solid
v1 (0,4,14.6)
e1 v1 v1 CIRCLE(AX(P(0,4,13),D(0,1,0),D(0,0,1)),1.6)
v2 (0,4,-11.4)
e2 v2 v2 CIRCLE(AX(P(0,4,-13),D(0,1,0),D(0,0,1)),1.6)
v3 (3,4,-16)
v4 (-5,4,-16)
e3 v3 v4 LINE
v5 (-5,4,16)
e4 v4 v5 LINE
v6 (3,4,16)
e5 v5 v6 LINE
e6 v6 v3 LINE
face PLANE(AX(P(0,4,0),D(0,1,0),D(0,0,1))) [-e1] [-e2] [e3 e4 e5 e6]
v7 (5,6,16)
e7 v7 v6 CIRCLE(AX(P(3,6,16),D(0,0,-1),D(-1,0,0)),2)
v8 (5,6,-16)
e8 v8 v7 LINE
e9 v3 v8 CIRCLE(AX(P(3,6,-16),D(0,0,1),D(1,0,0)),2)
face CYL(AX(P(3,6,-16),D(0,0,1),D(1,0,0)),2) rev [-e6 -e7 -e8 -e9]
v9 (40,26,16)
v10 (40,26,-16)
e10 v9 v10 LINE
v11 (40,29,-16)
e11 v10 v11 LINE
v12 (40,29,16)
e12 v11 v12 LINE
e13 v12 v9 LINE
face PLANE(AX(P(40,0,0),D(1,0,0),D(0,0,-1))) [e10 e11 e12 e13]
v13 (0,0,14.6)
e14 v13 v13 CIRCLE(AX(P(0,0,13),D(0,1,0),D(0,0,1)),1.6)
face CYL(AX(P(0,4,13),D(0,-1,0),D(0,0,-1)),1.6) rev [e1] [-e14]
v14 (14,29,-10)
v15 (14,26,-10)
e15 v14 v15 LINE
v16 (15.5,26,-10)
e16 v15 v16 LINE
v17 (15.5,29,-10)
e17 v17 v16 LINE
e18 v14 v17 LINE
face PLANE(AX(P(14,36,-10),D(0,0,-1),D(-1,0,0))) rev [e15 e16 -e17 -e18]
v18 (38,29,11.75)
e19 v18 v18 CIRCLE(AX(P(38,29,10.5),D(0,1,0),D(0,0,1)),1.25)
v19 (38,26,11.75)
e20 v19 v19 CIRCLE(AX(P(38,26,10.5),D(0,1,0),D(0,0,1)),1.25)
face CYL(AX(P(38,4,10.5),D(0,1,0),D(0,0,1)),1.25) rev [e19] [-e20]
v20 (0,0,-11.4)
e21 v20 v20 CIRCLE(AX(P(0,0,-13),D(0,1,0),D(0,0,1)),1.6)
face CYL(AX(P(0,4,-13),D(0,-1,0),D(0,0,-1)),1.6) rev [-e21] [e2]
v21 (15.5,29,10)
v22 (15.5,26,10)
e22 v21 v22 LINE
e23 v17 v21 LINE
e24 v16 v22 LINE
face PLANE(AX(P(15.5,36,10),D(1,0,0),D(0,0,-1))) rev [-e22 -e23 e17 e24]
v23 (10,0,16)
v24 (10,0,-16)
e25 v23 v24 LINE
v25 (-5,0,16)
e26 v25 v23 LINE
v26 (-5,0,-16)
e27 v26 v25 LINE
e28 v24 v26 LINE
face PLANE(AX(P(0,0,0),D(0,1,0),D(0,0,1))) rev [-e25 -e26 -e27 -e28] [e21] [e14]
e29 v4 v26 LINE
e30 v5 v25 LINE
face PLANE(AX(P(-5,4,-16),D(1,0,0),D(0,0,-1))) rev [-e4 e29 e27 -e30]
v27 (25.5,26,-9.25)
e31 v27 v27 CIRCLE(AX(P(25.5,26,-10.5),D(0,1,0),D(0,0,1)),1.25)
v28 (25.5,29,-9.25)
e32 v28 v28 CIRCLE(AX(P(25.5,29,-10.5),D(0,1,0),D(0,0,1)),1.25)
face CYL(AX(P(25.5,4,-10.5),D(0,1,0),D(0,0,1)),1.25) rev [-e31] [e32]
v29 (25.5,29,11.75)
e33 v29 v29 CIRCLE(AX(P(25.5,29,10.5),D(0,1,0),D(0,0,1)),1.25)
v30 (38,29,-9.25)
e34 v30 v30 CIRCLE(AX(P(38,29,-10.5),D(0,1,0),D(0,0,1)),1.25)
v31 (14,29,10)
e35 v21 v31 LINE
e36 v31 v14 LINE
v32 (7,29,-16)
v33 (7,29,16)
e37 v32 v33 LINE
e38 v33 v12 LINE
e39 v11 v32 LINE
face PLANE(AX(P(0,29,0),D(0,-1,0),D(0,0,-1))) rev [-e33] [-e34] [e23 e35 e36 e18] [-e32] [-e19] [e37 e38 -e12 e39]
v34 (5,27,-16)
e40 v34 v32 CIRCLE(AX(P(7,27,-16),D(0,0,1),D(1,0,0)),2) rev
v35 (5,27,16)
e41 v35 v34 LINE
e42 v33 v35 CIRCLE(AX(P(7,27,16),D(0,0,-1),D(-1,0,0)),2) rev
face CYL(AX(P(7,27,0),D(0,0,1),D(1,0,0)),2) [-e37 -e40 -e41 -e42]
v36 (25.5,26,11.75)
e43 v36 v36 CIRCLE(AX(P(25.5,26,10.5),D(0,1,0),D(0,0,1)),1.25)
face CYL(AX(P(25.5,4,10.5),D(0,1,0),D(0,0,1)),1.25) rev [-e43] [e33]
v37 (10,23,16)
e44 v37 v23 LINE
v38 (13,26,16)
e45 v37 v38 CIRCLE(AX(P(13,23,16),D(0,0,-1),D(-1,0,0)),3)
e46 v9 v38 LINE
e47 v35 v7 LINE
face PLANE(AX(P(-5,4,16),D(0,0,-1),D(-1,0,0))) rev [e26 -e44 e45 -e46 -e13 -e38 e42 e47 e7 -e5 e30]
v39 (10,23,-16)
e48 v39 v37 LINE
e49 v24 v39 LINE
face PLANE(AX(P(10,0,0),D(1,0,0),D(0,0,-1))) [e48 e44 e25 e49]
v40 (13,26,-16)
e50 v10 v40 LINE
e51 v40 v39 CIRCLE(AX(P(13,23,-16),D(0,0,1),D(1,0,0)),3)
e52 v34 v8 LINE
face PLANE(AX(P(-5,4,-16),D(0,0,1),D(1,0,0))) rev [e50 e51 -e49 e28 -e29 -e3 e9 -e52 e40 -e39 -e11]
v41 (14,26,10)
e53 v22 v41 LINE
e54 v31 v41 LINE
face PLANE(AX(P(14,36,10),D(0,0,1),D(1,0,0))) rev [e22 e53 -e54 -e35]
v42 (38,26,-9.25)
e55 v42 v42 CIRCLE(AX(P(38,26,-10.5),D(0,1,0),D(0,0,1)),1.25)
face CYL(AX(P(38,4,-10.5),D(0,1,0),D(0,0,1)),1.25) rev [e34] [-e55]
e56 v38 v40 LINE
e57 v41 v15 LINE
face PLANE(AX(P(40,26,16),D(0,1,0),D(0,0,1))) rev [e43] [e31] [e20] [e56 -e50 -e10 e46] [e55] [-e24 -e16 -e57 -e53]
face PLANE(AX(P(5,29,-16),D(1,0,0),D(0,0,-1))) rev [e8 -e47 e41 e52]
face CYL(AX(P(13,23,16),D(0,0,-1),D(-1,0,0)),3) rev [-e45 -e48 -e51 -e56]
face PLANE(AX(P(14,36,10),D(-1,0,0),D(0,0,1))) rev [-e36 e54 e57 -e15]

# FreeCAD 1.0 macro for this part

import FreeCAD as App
import Part
import Sketcher


def edges_at(feature, points):
    """Names of the edges that pass closest to the given points."""
    edges = feature.Shape.Edges
    near = lambda p: min(range(len(edges)), key=lambda i: edges[i].distToShape(Part.Vertex(*p))[0])
    return sorted({f"Edge{near(p) + 1}" for p in points})


def add_polygon(sketch, points):
    """Adds a closed chain of lines whose ends are joined by coincident constraints."""
    first, n = sketch.GeometryCount, len(points)
    for a, b in zip(points, points[1:] + points[:1]):
        sketch.addGeometry(Part.LineSegment(App.Vector(*a, 0), App.Vector(*b, 0)), False)
    for i in range(n):
        sketch.addConstraint(Sketcher.Constraint("Coincident", first + i, 2, first + (i + 1) % n, 1))

doc = App.newDocument("Part")
body = doc.addObject("PartDesign::Body", "Body")

sketch1 = doc.addObject("Sketcher::SketchObject", "Sketch")
body.addObject(sketch1)
sketch1.AttachmentSupport = (doc.XZ_Plane, [""])
sketch1.MapMode = "FlatFace"
add_polygon(sketch1, [(-5, -16), (-5, 16), (5, 16), (5, -16)])
sketch1.addGeometry(Part.Circle(App.Vector(0, 13, 0), App.Vector(0, 0, 1), 1.6), False)
sketch1.addGeometry(Part.Circle(App.Vector(0, -13, 0), App.Vector(0, 0, 1), 1.6), False)
sketch1.addConstraint([
    Sketcher.Constraint("Vertical", 0),
    Sketcher.Constraint("Horizontal", 1),
    Sketcher.Constraint("Vertical", 2),
    Sketcher.Constraint("Horizontal", 3),
    Sketcher.Constraint("Equal", 4, 5),
    Sketcher.Constraint("Symmetric", 4, 3, 5, 3, -1, 1),
    Sketcher.Constraint("Symmetric", 0, 2, 2, 2, -1, 1),
    Sketcher.Constraint("PointOnObject", 4, 3, -2),
    Sketcher.Constraint("Diameter", 4, 3.2),
    Sketcher.Constraint("DistanceX", 1, 1, 1, 2, 10.0),
    Sketcher.Constraint("DistanceY", 0, 1, 0, 2, 32.0),
    Sketcher.Constraint("DistanceY", -1, 1, 4, 3, 13.0),
])
pad1 = doc.addObject("PartDesign::Pad", "Pad")
body.addObject(pad1)
pad1.Profile = sketch1
pad1.Length = 4
pad1.Reversed = True

sketch2 = doc.addObject("Sketcher::SketchObject", "Sketch001")
body.addObject(sketch2)
sketch2.AttachmentSupport = (doc.YZ_Plane, [""])
sketch2.MapMode = "FlatFace"
sketch2.AttachmentOffset = App.Placement(App.Vector(0, 0, 5), App.Rotation())
add_polygon(sketch2, [(4, 16), (0, 16), (0, -16), (4, -16)])
sketch2.addConstraint([
    Sketcher.Constraint("Horizontal", 0),
    Sketcher.Constraint("Vertical", 1),
    Sketcher.Constraint("Horizontal", 2),
    Sketcher.Constraint("Vertical", 3),
    Sketcher.Constraint("Symmetric", 0, 2, 1, 2, -1, 1),
    Sketcher.Constraint("DistanceX", 0, 2, 0, 1, 4.0),
    Sketcher.Constraint("DistanceY", 1, 2, 1, 1, 32.0),
])
pad2 = doc.addObject("PartDesign::Pad", "Pad001")
body.addObject(pad2)
pad2.Profile = sketch2
pad2.Length = 5

sketch3 = doc.addObject("Sketcher::SketchObject", "Sketch002")
body.addObject(sketch3)
sketch3.AttachmentSupport = (doc.XZ_Plane, [""])
sketch3.MapMode = "FlatFace"
sketch3.AttachmentOffset = App.Placement(App.Vector(0, 0, -4), App.Rotation())
add_polygon(sketch3, [(5, -16), (5, 16), (10, 16), (10, -16)])
sketch3.addConstraint([
    Sketcher.Constraint("Vertical", 0),
    Sketcher.Constraint("Horizontal", 1),
    Sketcher.Constraint("Vertical", 2),
    Sketcher.Constraint("Horizontal", 3),
    Sketcher.Constraint("DistanceX", 1, 1, 1, 2, 5.0),
    Sketcher.Constraint("DistanceY", 0, 1, 0, 2, 32.0),
    Sketcher.Constraint("DistanceX", -1, 1, 0, 2, 5.0),
    Sketcher.Constraint("DistanceY", -1, 1, 0, 2, 16.0),
])
pad3 = doc.addObject("PartDesign::Pad", "Pad002")
body.addObject(pad3)
pad3.Profile = sketch3
pad3.Length = 25
pad3.Reversed = True
doc.recompute()

fillet = doc.addObject("PartDesign::Fillet", "Fillet")
body.addObject(fillet)
fillet.Base = (pad3, edges_at(pad3, [(5, 4, 0)]))
fillet.Radius = 2

sketch4 = doc.addObject("Sketcher::SketchObject", "Sketch003")
body.addObject(sketch4)
sketch4.AttachmentSupport = (doc.YZ_Plane, [""])
sketch4.MapMode = "FlatFace"
sketch4.AttachmentOffset = App.Placement(App.Vector(0, 0, 10), App.Rotation())
add_polygon(sketch4, [(29, 16), (26, 16), (26, -16), (29, -16)])
sketch4.addConstraint([
    Sketcher.Constraint("Horizontal", 0),
    Sketcher.Constraint("Vertical", 1),
    Sketcher.Constraint("Horizontal", 2),
    Sketcher.Constraint("Vertical", 3),
    Sketcher.Constraint("DistanceX", 0, 2, 0, 1, 3.0),
    Sketcher.Constraint("DistanceY", 1, 2, 1, 1, 32.0),
    Sketcher.Constraint("DistanceX", -1, 1, 0, 2, 26.0),
    Sketcher.Constraint("DistanceY", -1, 1, 0, 2, 16.0),
])
pad4 = doc.addObject("PartDesign::Pad", "Pad003")
body.addObject(pad4)
pad4.Profile = sketch4
pad4.Length = 30

sketch5 = doc.addObject("Sketcher::SketchObject", "Sketch004")
body.addObject(sketch5)
sketch5.AttachmentSupport = (doc.XZ_Plane, [""])
sketch5.MapMode = "FlatFace"
sketch5.AttachmentOffset = App.Placement(App.Vector(0, 0, -29), App.Rotation())
sketch5.addGeometry([
    Part.Circle(App.Vector(38, 10.5, 0), App.Vector(0, 0, 1), 1.2),
    Part.Circle(App.Vector(38, -10.5, 0), App.Vector(0, 0, 1), 1.2),
    Part.Circle(App.Vector(25.5, -10.5, 0), App.Vector(0, 0, 1), 1.2),
    Part.Circle(App.Vector(25.5, 10.5, 0), App.Vector(0, 0, 1), 1.2),
], False)
sketch5.addConstraint([
    Sketcher.Constraint("Equal", 0, 1),
    Sketcher.Constraint("Equal", 1, 2),
    Sketcher.Constraint("Equal", 2, 3),
    Sketcher.Constraint("Symmetric", 0, 3, 1, 3, -1),
    Sketcher.Constraint("Symmetric", 2, 3, 3, 3, -1),
    Sketcher.Constraint("Horizontal", 1, 3, 2, 3),
    Sketcher.Constraint("Diameter", 0, 2.5),
    Sketcher.Constraint("DistanceX", -1, 1, 0, 3, 38.0),
    Sketcher.Constraint("DistanceY", 1, 3, 0, 3, 21.0),
    Sketcher.Constraint("DistanceX", -1, 1, 2, 3, 25.5),
])
pocket1 = doc.addObject("PartDesign::Pocket", "Pocket")
body.addObject(pocket1)
pocket1.Profile = sketch5
pocket1.Length = 25
pocket1.Reversed = True
doc.recompute()

fillet2 = doc.addObject("PartDesign::Fillet", "Fillet001")
body.addObject(fillet2)
fillet2.Base = (pocket1, edges_at(pocket1, [(5, 29, 0)]))
fillet2.Radius = 2
doc.recompute()

fillet3 = doc.addObject("PartDesign::Fillet", "Fillet002")
body.addObject(fillet3)
fillet3.Base = (fillet2, edges_at(fillet2, [(10, 26, 0)]))
fillet3.Radius = 3

sketch6 = doc.addObject("Sketcher::SketchObject", "Sketch005")
body.addObject(sketch6)
sketch6.AttachmentSupport = (doc.XZ_Plane, [""])
sketch6.MapMode = "FlatFace"
sketch6.AttachmentOffset = App.Placement(App.Vector(0, 0, -26), App.Rotation())
add_polygon(sketch6, [(14, 10), (14, -10), (15.5, -10), (15.5, 10)])
sketch6.addConstraint([
    Sketcher.Constraint("Vertical", 0),
    Sketcher.Constraint("Horizontal", 1),
    Sketcher.Constraint("Vertical", 2),
    Sketcher.Constraint("Horizontal", 3),
    Sketcher.Constraint("DistanceY", 0, 2, 0, 1, 20.0),
    Sketcher.Constraint("DistanceX", 1, 1, 1, 2, 1.5),
    Sketcher.Constraint("DistanceX", -1, 1, 0, 2, 14.0),
    Sketcher.Constraint("DistanceY", 0, 2, -1, 1, 10.0),
])
pocket2 = doc.addObject("PartDesign::Pocket", "Pocket001")
body.addObject(pocket2)
pocket2.Profile = sketch6
pocket2.Length = 10

doc.recompute()
